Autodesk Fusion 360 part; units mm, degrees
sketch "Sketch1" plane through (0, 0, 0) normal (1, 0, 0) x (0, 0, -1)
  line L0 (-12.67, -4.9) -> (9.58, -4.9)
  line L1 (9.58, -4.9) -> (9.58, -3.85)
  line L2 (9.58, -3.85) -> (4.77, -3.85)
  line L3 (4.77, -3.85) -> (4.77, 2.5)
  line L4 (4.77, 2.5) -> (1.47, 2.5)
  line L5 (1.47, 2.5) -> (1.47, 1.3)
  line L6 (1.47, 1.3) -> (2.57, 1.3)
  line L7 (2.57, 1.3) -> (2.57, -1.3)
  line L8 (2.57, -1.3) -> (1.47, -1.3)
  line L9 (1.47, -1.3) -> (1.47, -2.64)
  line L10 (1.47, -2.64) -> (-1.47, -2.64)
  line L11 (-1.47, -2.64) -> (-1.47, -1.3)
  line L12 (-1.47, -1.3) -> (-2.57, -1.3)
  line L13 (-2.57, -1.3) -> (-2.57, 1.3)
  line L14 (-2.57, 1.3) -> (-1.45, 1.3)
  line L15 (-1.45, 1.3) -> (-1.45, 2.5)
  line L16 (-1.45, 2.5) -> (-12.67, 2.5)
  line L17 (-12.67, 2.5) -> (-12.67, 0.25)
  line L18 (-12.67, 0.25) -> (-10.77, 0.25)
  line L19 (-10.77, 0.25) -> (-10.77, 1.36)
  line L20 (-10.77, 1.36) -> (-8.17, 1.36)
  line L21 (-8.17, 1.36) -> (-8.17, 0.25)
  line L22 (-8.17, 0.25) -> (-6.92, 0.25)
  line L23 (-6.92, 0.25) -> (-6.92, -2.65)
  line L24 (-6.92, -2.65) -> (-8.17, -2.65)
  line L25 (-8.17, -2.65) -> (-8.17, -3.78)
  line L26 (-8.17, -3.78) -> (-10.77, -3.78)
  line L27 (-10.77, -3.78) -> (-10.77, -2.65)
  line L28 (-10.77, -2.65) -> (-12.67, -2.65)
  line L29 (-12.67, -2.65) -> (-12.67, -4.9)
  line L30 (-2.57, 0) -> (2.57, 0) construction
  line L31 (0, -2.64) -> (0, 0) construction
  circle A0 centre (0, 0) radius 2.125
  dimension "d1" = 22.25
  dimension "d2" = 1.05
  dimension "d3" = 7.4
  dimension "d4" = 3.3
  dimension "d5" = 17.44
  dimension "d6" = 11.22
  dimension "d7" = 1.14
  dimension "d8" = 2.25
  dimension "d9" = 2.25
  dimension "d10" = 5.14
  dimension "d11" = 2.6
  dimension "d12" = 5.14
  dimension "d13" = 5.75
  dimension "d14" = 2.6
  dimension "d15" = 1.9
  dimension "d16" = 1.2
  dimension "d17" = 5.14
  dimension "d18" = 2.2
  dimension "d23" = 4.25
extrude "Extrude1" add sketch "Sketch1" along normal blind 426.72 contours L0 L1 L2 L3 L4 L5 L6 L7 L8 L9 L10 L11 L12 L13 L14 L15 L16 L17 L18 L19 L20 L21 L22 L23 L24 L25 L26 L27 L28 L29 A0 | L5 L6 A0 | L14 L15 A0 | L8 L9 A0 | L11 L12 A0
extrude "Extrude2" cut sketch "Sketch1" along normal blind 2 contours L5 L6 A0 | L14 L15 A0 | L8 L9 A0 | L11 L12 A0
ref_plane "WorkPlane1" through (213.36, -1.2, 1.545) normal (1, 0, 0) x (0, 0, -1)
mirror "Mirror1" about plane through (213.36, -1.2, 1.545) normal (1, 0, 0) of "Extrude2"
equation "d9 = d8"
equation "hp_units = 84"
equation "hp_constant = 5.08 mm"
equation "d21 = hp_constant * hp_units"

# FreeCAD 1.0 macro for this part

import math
import FreeCAD as App
import Part
import Sketcher
Q = App.Units.Quantity

doc = App.newDocument("Part")
body = doc.addObject("PartDesign::Body", "Body")

# Sketch on YZ plane
sketch1 = body.newObject("Sketcher::SketchObject", "Sketch")
sketch1.AttachmentSupport = (doc.getObject("YZ_Plane"), [""])
sketch1.MapMode = "FlatFace"
sketch1.addGeometry([
    Part.LineSegment(App.Vector(-2.6, 12.7, 0), App.Vector(-4.9, 12.7, 0)),  # 0
    Part.LineSegment(App.Vector(-4.9, 12.7, 0), App.Vector(-4.9, -9.6, 0)),  # 1
    Part.LineSegment(App.Vector(-4.9, -9.6, 0), App.Vector(-3.9, -9.6, 0)),  # 2
    Part.LineSegment(App.Vector(-3.9, -9.6, 0), App.Vector(-3.9, -4.8, 0)),  # 3
    Part.LineSegment(App.Vector(-3.9, -4.8, 0), App.Vector(2.5, -4.8, 0)),  # 4
    Part.LineSegment(App.Vector(2.5, -4.8, 0), App.Vector(2.5, -1.5, 0)),  # 5
    Part.LineSegment(App.Vector(2.5, -1.5, 0), App.Vector(1.3, -1.5, 0)),  # 6
    Part.LineSegment(App.Vector(1.3, -1.5, 0), App.Vector(1.3, -2.6, 0)),  # 7
    Part.LineSegment(App.Vector(1.3, -2.6, 0), App.Vector(-1.3, -2.6, 0)),  # 8
    Part.LineSegment(App.Vector(-1.3, -2.6, 0), App.Vector(-1.3, -1.5, 0)),  # 9
    Part.LineSegment(App.Vector(-1.3, -1.5, 0), App.Vector(-2.6, -1.5, 0)),  # 10
    Part.LineSegment(App.Vector(-2.6, -1.5, 0), App.Vector(-2.6, 1.5, 0)),  # 11
    Part.LineSegment(App.Vector(-2.6, 1.5, 0), App.Vector(-1.3, 1.5, 0)),  # 12
    Part.LineSegment(App.Vector(-1.3, 1.5, 0), App.Vector(-1.3, 2.6, 0)),  # 13
    Part.LineSegment(App.Vector(-1.3, 2.6, 0), App.Vector(1.3, 2.6, 0)),  # 14
    Part.LineSegment(App.Vector(1.3, 2.6, 0), App.Vector(1.3, 1.4, 0)),  # 15
    Part.LineSegment(App.Vector(1.3, 1.4, 0), App.Vector(2.5, 1.4, 0)),  # 16
    Part.LineSegment(App.Vector(2.5, 1.4, 0), App.Vector(2.5, 12.7, 0)),  # 17
    Part.LineSegment(App.Vector(2.5, 12.7, 0), App.Vector(0.2, 12.7, 0)),  # 18
    Part.LineSegment(App.Vector(0.2, 12.7, 0), App.Vector(0.2, 10.8, 0)),  # 19
    Part.LineSegment(App.Vector(0.2, 10.8, 0), App.Vector(1.4, 10.8, 0)),  # 20
    Part.LineSegment(App.Vector(1.4, 10.8, 0), App.Vector(1.4, 8.2, 0)),  # 21
    Part.LineSegment(App.Vector(1.4, 8.2, 0), App.Vector(0.2, 8.2, 0)),  # 22
    Part.LineSegment(App.Vector(0.2, 8.2, 0), App.Vector(0.2, 6.9, 0)),  # 23
    Part.LineSegment(App.Vector(0.2, 6.9, 0), App.Vector(-2.6, 6.9, 0)),  # 24
    Part.LineSegment(App.Vector(-2.6, 6.9, 0), App.Vector(-2.6, 8.2, 0)),  # 25
    Part.LineSegment(App.Vector(-2.6, 8.2, 0), App.Vector(-3.8, 8.2, 0)),  # 26
    Part.LineSegment(App.Vector(-3.8, 8.2, 0), App.Vector(-3.8, 10.8, 0)),  # 27
    Part.LineSegment(App.Vector(-3.8, 10.8, 0), App.Vector(-2.6, 10.8, 0)),  # 28
    Part.LineSegment(App.Vector(-2.6, 10.8, 0), App.Vector(-2.6, 12.7, 0)),  # 29
], False)
sketch1.addConstraint([
    Sketcher.Constraint("Coincident", 0, 2, 1, 1),
    Sketcher.Constraint("Coincident", 1, 2, 2, 1),
    Sketcher.Constraint("Coincident", 2, 2, 3, 1),
    Sketcher.Constraint("Coincident", 3, 2, 4, 1),
    Sketcher.Constraint("Coincident", 4, 2, 5, 1),
    Sketcher.Constraint("Coincident", 5, 2, 6, 1),
    Sketcher.Constraint("Coincident", 6, 2, 7, 1),
    Sketcher.Constraint("Coincident", 7, 2, 8, 1),
    Sketcher.Constraint("Coincident", 8, 2, 9, 1),
    Sketcher.Constraint("Coincident", 9, 2, 10, 1),
    Sketcher.Constraint("Coincident", 10, 2, 11, 1),
    Sketcher.Constraint("Coincident", 11, 2, 12, 1),
    Sketcher.Constraint("Coincident", 12, 2, 13, 1),
    Sketcher.Constraint("Coincident", 13, 2, 14, 1),
    Sketcher.Constraint("Coincident", 14, 2, 15, 1),
    Sketcher.Constraint("Coincident", 15, 2, 16, 1),
    Sketcher.Constraint("Coincident", 16, 2, 17, 1),
    Sketcher.Constraint("Coincident", 17, 2, 18, 1),
    Sketcher.Constraint("Coincident", 18, 2, 19, 1),
    Sketcher.Constraint("Coincident", 19, 2, 20, 1),
    Sketcher.Constraint("Coincident", 20, 2, 21, 1),
    Sketcher.Constraint("Coincident", 21, 2, 22, 1),
    Sketcher.Constraint("Coincident", 22, 2, 23, 1),
    Sketcher.Constraint("Coincident", 23, 2, 24, 1),
    Sketcher.Constraint("Coincident", 24, 2, 25, 1),
    Sketcher.Constraint("Coincident", 25, 2, 26, 1),
    Sketcher.Constraint("Coincident", 26, 2, 27, 1),
    Sketcher.Constraint("Coincident", 27, 2, 28, 1),
    Sketcher.Constraint("Coincident", 28, 2, 29, 1),
    Sketcher.Constraint("Coincident", 29, 2, 0, 1),
    Sketcher.Constraint("Horizontal", 0),
    Sketcher.Constraint("Vertical", 1),
    Sketcher.Constraint("Horizontal", 2),
    Sketcher.Constraint("Vertical", 3),
    Sketcher.Constraint("Horizontal", 4),
    Sketcher.Constraint("Vertical", 5),
    Sketcher.Constraint("Horizontal", 6),
    Sketcher.Constraint("Vertical", 7),
    Sketcher.Constraint("Horizontal", 8),
    Sketcher.Constraint("Vertical", 9),
    Sketcher.Constraint("Horizontal", 10),
    Sketcher.Constraint("Vertical", 11),
    Sketcher.Constraint("Horizontal", 12),
    Sketcher.Constraint("Vertical", 13),
    Sketcher.Constraint("Horizontal", 14),
    Sketcher.Constraint("Vertical", 15),
    Sketcher.Constraint("Horizontal", 16),
    Sketcher.Constraint("Vertical", 17),
    Sketcher.Constraint("Horizontal", 18),
    Sketcher.Constraint("Vertical", 19),
    Sketcher.Constraint("Horizontal", 20),
    Sketcher.Constraint("Vertical", 21),
    Sketcher.Constraint("Horizontal", 22),
    Sketcher.Constraint("Vertical", 23),
    Sketcher.Constraint("Horizontal", 24),
    Sketcher.Constraint("Vertical", 25),
    Sketcher.Constraint("Horizontal", 26),
    Sketcher.Constraint("Vertical", 27),
    Sketcher.Constraint("Horizontal", 28),
    Sketcher.Constraint("Vertical", 29),
    Sketcher.Constraint("Symmetric", 6, 2, 12, 2, -1, 1),
    Sketcher.Constraint("Symmetric", 8, 2, 14, 2, -1, 1),
    Sketcher.Constraint("Symmetric", 6, 2, 9, 2, -2),
    Sketcher.Constraint("Horizontal", 0, 2, 17, 2),
    Sketcher.Constraint("Horizontal", 22, 2, 25, 2),
    Sketcher.Constraint("Horizontal", 20, 2, 27, 2),
    Sketcher.Constraint("Vertical", 5, 2, 16, 2),
    Sketcher.Constraint("Vertical", 19, 2, 22, 2),
    Sketcher.Constraint("Vertical", 25, 2, 28, 2),
    Sketcher.Constraint("Equal", 0, 18),
    Sketcher.Constraint("Equal", 14, 21),
    Sketcher.Constraint("DistanceX", 6, 2, 6, 1, Q("1.2 mm")),
    Sketcher.Constraint("DistanceX", 8, 2, 8, 1, Q("2.6 mm")),
    Sketcher.Constraint("DistanceY", 5, 1, 5, 2, Q("3.3 mm")),
    Sketcher.Constraint("DistanceY", 19, 2, 19, 1, Q("1.9 mm")),
    Sketcher.Constraint("DistanceX", 0, 2, 0, 1, Q("2.25 mm")),
    Sketcher.Constraint("DistanceX", 2, 1, 2, 2, Q("1.05 mm")),
    Sketcher.Constraint("DistanceY", 1, 2, 1, 1, Q("22.25 mm")),
    Sketcher.Constraint("DistanceY", 17, 1, 17, 2, Q("11.22 mm")),
    Sketcher.Constraint("DistanceX", 1, 2, 4, 2, Q("7.4 mm")),
    Sketcher.Constraint("DistanceY", 4, 2, 7, 2, Q("2.2 mm")),
    Sketcher.Constraint("DistanceY", 3, 2, 0, 2, Q("17.44 mm")),
    Sketcher.Constraint("DistanceX", 20, 2, 17, 2, Q("1.14 mm")),
    Sketcher.Constraint("DistanceX", 10, 2, 10, 1, Q("1.34 mm")),
    Sketcher.Constraint("DistanceX", 26, 2, 26, 1, Q("1.13 mm")),
    Sketcher.Constraint("DistanceY", 11, 1, 11, 2, Q("2.94 mm")),
    Sketcher.Constraint("DistanceY", 23, 2, 23, 1, Q("1.25 mm")),
])
pad1 = body.newObject("PartDesign::Pad", "Pad")
pad1.Profile = sketch1
pad1.Length = 426.72

# Sketch on YZ plane
sketch2 = body.newObject("Sketcher::SketchObject", "Sketch001")
sketch2.AttachmentSupport = (doc.getObject("YZ_Plane"), [""])
sketch2.MapMode = "FlatFace"
sketch2.addGeometry([
    Part.ArcOfCircle(Part.Circle(App.Vector(0, 0, 0), App.Vector(0, 0, 1), 2.12), math.radians(-52.28), math.radians(-43.77)),  # 0
    Part.LineSegment(App.Vector(1.53, -1.47, 0), App.Vector(1.3, -1.47, 0)),  # 1
    Part.LineSegment(App.Vector(1.3, -1.47, 0), App.Vector(1.3, -1.68, 0)),  # 2
    Part.LineSegment(App.Vector(1.3, 1.45, 0), App.Vector(1.55, 1.45, 0)),  # 3
    Part.ArcOfCircle(Part.Circle(App.Vector(0, 0, 0), App.Vector(0, 0, 1), 2.12), math.radians(43.03), math.radians(52.28)),  # 4
    Part.LineSegment(App.Vector(1.3, 1.68, 0), App.Vector(1.3, 1.45, 0)),  # 5
    Part.ArcOfCircle(Part.Circle(App.Vector(0, 0, 0), App.Vector(0, 0, 1), 2.12), math.radians(-136.23), math.radians(-127.72)),  # 6
    Part.LineSegment(App.Vector(-1.3, -1.68, 0), App.Vector(-1.3, -1.47, 0)),  # 7
    Part.LineSegment(App.Vector(-1.3, -1.47, 0), App.Vector(-1.53, -1.47, 0)),  # 8
    Part.LineSegment(App.Vector(-1.3, 1.47, 0), App.Vector(-1.3, 1.68, 0)),  # 9
    Part.ArcOfCircle(Part.Circle(App.Vector(0, 0, 0), App.Vector(0, 0, 1), 2.12), math.radians(127.72), math.radians(136.23)),  # 10
    Part.LineSegment(App.Vector(-1.53, 1.47, 0), App.Vector(-1.3, 1.47, 0)),  # 11
], False)
sketch2.addConstraint([
    Sketcher.Constraint("Coincident", 0, 2, 1, 1),
    Sketcher.Constraint("Coincident", 1, 2, 2, 1),
    Sketcher.Constraint("Coincident", 2, 2, 0, 1),
    Sketcher.Constraint("Coincident", 3, 2, 4, 1),
    Sketcher.Constraint("Coincident", 4, 2, 5, 1),
    Sketcher.Constraint("Coincident", 5, 2, 3, 1),
    Sketcher.Constraint("Coincident", 6, 2, 7, 1),
    Sketcher.Constraint("Coincident", 7, 2, 8, 1),
    Sketcher.Constraint("Coincident", 8, 2, 6, 1),
    Sketcher.Constraint("Coincident", 9, 2, 10, 1),
    Sketcher.Constraint("Coincident", 10, 2, 11, 1),
    Sketcher.Constraint("Coincident", 11, 2, 9, 1),
    Sketcher.Constraint("Horizontal", 1),
    Sketcher.Constraint("Vertical", 2),
    Sketcher.Constraint("Horizontal", 3),
    Sketcher.Constraint("Vertical", 5),
    Sketcher.Constraint("Vertical", 7),
    Sketcher.Constraint("Horizontal", 8),
    Sketcher.Constraint("Vertical", 9),
    Sketcher.Constraint("Horizontal", 11),
    Sketcher.Constraint("Coincident", 0, 3, -1, 1),
    Sketcher.Constraint("Coincident", 4, 3, -1, 1),
    Sketcher.Constraint("Coincident", 6, 3, -1, 1),
    Sketcher.Constraint("Coincident", 10, 3, -1, 1),
    Sketcher.Constraint("Equal", 0, 4),
    Sketcher.Constraint("Equal", 4, 6),
    Sketcher.Constraint("Equal", 6, 10),
    Sketcher.Constraint("Symmetric", 1, 2, 11, 2, -1, 1),
    Sketcher.Constraint("Symmetric", 1, 2, 7, 2, -2),
    Sketcher.Constraint("Horizontal", 4, 2, 9, 2),
    Sketcher.Constraint("Radius", 0, Q("2.125 mm")),
    Sketcher.Constraint("DistanceX", 6, 2, 2, 2, Q("2.6 mm")),
    Sketcher.Constraint("DistanceY", 2, 2, 2, 1, Q("0.211 mm")),
    Sketcher.Constraint("DistanceY", 5, 2, 5, 1, Q("0.231 mm")),
])
pocket1 = body.newObject("PartDesign::Pocket", "Pocket")
pocket1.Profile = sketch2
pocket1.Length = 2
pocket1.Reversed = True
doc.recompute()

datumplane = body.newObject("PartDesign::Plane", "DatumPlane")
datumplane.AttachmentSupport = (doc.getObject("YZ_Plane"), [""])
datumplane.MapMode = "FlatFace"
datumplane.AttachmentOffset = App.Placement(App.Vector(0, 0, 213.36), App.Rotation())
mirrored = body.newObject("PartDesign::Mirrored", "Mirrored")
mirrored.Originals = [pocket1]
mirrored.MirrorPlane = (datumplane, [""])
body.Tip = mirrored

doc.recompute()
